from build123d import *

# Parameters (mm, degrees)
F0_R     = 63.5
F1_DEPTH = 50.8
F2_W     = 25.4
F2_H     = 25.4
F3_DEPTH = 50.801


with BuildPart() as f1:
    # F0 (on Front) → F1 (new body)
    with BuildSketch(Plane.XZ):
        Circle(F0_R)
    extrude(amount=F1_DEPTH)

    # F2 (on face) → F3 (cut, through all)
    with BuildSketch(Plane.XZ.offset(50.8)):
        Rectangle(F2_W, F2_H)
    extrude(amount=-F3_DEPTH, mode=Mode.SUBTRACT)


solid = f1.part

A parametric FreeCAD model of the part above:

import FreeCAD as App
import Part
import Sketcher
Q = App.Units.Quantity

doc = App.newDocument("Part")
body = doc.addObject("PartDesign::Body", "Body")

sketch1 = doc.addObject("Sketcher::SketchObject", "Sketch")
body.addObject(sketch1)
sketch1.AttachmentSupport = (doc.XZ_Plane, [""])
sketch1.MapMode = "FlatFace"
sketch1.addGeometry(Part.Circle(App.Vector(0, 0, 0), App.Vector(0, 0, 1), 63.5), False)
sketch1.addConstraint(Sketcher.Constraint("Coincident", 0, 3, -1, 1))
sketch1.addConstraint(Sketcher.Constraint("Diameter", 0, Q("5 in")))
pad1 = doc.addObject("PartDesign::Pad", "Pad")
body.addObject(pad1)
pad1.Profile = sketch1
pad1.Length = Q("2 in")

sketch2 = doc.addObject("Sketcher::SketchObject", "Sketch001")
body.addObject(sketch2)
sketch2.AttachmentSupport = (doc.XZ_Plane, [""])
sketch2.MapMode = "FlatFace"
sketch2.AttachmentOffset = App.Placement(App.Vector(0, 0, 2 * 25.4), App.Rotation())
sketch2.addGeometry(Part.LineSegment(App.Vector(-12.7, 12.7, 0), App.Vector(-12.7, -12.7, 0)), False)
sketch2.addGeometry(Part.LineSegment(App.Vector(-12.7, -12.7, 0), App.Vector(12.7, -12.7, 0)), False)
sketch2.addGeometry(Part.LineSegment(App.Vector(12.7, -12.7, 0), App.Vector(12.7, 12.7, 0)), False)
sketch2.addGeometry(Part.LineSegment(App.Vector(12.7, 12.7, 0), App.Vector(-12.7, 12.7, 0)), False)
sketch2.addConstraint(Sketcher.Constraint("Coincident", 0, 2, 1, 1))
sketch2.addConstraint(Sketcher.Constraint("Coincident", 1, 2, 2, 1))
sketch2.addConstraint(Sketcher.Constraint("Coincident", 2, 2, 3, 1))
sketch2.addConstraint(Sketcher.Constraint("Coincident", 3, 2, 0, 1))
sketch2.addConstraint(Sketcher.Constraint("Vertical", 0))
sketch2.addConstraint(Sketcher.Constraint("Horizontal", 1))
sketch2.addConstraint(Sketcher.Constraint("Vertical", 2))
sketch2.addConstraint(Sketcher.Constraint("Horizontal", 3))
sketch2.addConstraint(Sketcher.Constraint("Symmetric", 0, 2, 2, 2, -1, 1))
sketch2.addConstraint(Sketcher.Constraint("Equal", 3, 0))
sketch2.addConstraint(Sketcher.Constraint("DistanceX", 1, 1, 1, 2, Q("1 in")))
pocket1 = doc.addObject("PartDesign::Pocket", "Pocket")
body.addObject(pocket1)
pocket1.Profile = sketch2
pocket1.Type = "ThroughAll"

doc.recompute()
